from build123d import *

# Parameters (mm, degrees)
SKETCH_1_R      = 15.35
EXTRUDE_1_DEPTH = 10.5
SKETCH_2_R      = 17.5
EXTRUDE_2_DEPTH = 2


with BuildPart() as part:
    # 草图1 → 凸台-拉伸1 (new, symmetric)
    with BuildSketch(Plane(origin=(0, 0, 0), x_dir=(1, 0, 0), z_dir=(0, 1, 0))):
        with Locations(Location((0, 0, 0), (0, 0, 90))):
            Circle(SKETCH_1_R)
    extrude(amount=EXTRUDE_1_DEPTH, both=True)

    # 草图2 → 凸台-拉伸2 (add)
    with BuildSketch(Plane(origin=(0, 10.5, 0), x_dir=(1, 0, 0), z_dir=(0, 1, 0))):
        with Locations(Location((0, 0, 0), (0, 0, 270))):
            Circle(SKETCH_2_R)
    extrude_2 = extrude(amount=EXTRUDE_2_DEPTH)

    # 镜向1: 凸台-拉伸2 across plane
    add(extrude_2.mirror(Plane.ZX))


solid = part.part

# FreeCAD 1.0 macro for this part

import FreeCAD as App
import Part
import Sketcher
from FreeCAD import Vector

doc = App.newDocument("Part")
params = doc.addObject("Spreadsheet::Sheet", "Params")
for row, (alias, value) in enumerate([
    ("sketch1_diameter", "30.7 mm"),
    ("pad1_length", "21 mm"),
    ("sketch2_diameter", "35 mm"),
    ("pad2_length", "2 mm"),
], start=1):
    params.set(f"A{row}", alias)
    params.set(f"B{row}", "=" + value)
    params.setAlias(f"B{row}", alias)

body = doc.addObject("PartDesign::Body", "Body")

# Sketch on XZ plane
sketch1 = body.newObject("Sketcher::SketchObject", "Sketch")
sketch1.AttachmentSupport = (doc.getObject("XZ_Plane"), [""])
sketch1.MapMode = "FlatFace"
sketch1.addGeometry(Part.Circle(Vector(0, 0, 0), Vector(0, 0, 1), 15), False)
sketch1.addConstraint(Sketcher.Constraint("Coincident", 0, 3, -1, 1))
sketch1.addConstraint(Sketcher.Constraint("Diameter", 0, 30.7))
sketch1.setExpression("Constraints[1]", "Params.sketch1_diameter")
pad1 = body.newObject("PartDesign::Pad", "Pad")
pad1.Profile = sketch1
pad1.setExpression("Length", "Params.pad1_length")
pad1.Midplane = True

# Sketch on XZ plane
sketch2 = body.newObject("Sketcher::SketchObject", "Sketch001")
sketch2.AttachmentSupport = (doc.getObject("XZ_Plane"), [""])
sketch2.MapMode = "FlatFace"
sketch2.AttachmentOffset = App.Placement(Vector(0, 0, -10.5), App.Rotation())
sketch2.addGeometry(Part.Circle(Vector(0, 0, 0), Vector(0, 0, 1), 18), False)
sketch2.addConstraint(Sketcher.Constraint("Coincident", 0, 3, -1, 1))
sketch2.addConstraint(Sketcher.Constraint("Diameter", 0, 35.0))
sketch2.setExpression("Constraints[1]", "Params.sketch2_diameter")
pad2 = body.newObject("PartDesign::Pad", "Pad001")
pad2.Profile = sketch2
pad2.setExpression("Length", "Params.pad2_length")
pad2.Reversed = True
doc.recompute()

mirrored = body.newObject("PartDesign::Mirrored", "Mirrored")
mirrored.Originals = [pad2]
mirrored.MirrorPlane = (doc.getObject("XZ_Plane"), [""])
body.Tip = mirrored

doc.recompute()
